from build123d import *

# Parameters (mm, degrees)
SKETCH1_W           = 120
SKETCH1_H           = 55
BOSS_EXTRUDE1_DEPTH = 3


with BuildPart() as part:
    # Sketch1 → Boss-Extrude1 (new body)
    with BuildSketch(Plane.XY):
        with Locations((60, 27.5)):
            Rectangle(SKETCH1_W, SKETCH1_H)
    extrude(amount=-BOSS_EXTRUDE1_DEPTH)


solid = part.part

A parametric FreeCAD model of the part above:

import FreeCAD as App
import Part
import Sketcher
from FreeCAD import Vector


def add_polygon(sketch, points):
    """Adds a closed chain of lines whose ends are joined by coincident constraints."""
    first, n = sketch.GeometryCount, len(points)
    for a, b in zip(points, points[1:] + points[:1]):
        sketch.addGeometry(Part.LineSegment(App.Vector(*a, 0), App.Vector(*b, 0)), False)
    for i in range(n):
        sketch.addConstraint(Sketcher.Constraint("Coincident", first + i, 2, first + (i + 1) % n, 1))

doc = App.newDocument("Part")
params = doc.addObject("Spreadsheet::Sheet", "Params")
for row, (alias, value) in enumerate([
    ("sketch1_width", "120 mm"),
    ("sketch1_height", "55 mm"),
    ("pad1_length", "3 mm"),
], start=1):
    params.set(f"A{row}", alias)
    params.set(f"B{row}", "=" + value)
    params.setAlias(f"B{row}", alias)

body = doc.addObject("PartDesign::Body", "Body")

sketch1 = body.newObject("Sketcher::SketchObject", "Sketch")
sketch1.AttachmentSupport = (doc.getObject("XY_Plane"), [""])
sketch1.MapMode = "FlatFace"
add_polygon(sketch1, [(0, 55), (0, 0), (120, 0), (120, 55)])
sketch1.addConstraint(Sketcher.Constraint("Vertical", 0))
sketch1.addConstraint(Sketcher.Constraint("Horizontal", 1))
sketch1.addConstraint(Sketcher.Constraint("Vertical", 2))
sketch1.addConstraint(Sketcher.Constraint("Horizontal", 3))
sketch1.addConstraint(Sketcher.Constraint("Coincident", 0, 2, -1, 1))
sketch1.addConstraint(Sketcher.Constraint("DistanceX", 1, 1, 1, 2, 120.0))
sketch1.addConstraint(Sketcher.Constraint("DistanceY", 0, 2, 0, 1, 55.0))
sketch1.setExpression("Constraints[9]", "Params.sketch1_width")
sketch1.setExpression("Constraints[10]", "Params.sketch1_height")
pad1 = body.newObject("PartDesign::Pad", "Pad")
pad1.Profile = sketch1
pad1.setExpression("Length", "Params.pad1_length")
pad1.Reversed = True

doc.recompute()
